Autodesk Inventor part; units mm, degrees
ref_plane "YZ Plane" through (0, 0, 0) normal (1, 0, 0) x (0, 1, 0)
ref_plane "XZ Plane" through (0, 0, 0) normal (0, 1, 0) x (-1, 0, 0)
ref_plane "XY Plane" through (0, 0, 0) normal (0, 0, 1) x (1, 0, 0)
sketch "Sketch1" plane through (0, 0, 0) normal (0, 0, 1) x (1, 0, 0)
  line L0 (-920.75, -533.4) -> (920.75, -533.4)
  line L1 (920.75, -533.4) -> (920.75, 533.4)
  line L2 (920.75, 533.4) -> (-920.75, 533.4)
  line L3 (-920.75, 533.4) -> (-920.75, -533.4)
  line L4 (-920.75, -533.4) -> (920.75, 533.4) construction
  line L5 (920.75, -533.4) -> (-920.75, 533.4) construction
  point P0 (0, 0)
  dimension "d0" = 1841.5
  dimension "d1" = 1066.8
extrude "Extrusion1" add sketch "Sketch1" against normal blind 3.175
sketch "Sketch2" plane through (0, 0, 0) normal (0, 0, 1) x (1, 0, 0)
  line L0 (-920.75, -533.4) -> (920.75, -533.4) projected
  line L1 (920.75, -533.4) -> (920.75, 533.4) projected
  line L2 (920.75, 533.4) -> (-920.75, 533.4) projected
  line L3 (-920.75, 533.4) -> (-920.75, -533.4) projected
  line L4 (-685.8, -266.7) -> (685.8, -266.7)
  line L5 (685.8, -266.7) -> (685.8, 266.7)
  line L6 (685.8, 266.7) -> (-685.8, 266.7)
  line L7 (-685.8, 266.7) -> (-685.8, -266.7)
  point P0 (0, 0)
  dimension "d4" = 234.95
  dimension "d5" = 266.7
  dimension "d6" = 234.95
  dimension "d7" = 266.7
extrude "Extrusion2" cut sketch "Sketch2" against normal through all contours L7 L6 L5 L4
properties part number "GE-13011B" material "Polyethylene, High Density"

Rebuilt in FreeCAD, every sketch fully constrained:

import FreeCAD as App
import Part
import Sketcher
Q = App.Units.Quantity

doc = App.newDocument("Part")
body = doc.addObject("PartDesign::Body", "Body")

# Sketch on XY plane
sketch1 = body.newObject("Sketcher::SketchObject", "Sketch")
sketch1.AttachmentSupport = (doc.getObject("XY_Plane"), [""])
sketch1.MapMode = "FlatFace"
sketch1.addGeometry(Part.LineSegment(App.Vector(-921, 533, 0), App.Vector(-921, -533, 0)), False)
sketch1.addGeometry(Part.LineSegment(App.Vector(-921, -533, 0), App.Vector(921, -533, 0)), False)
sketch1.addGeometry(Part.LineSegment(App.Vector(921, -533, 0), App.Vector(921, 533, 0)), False)
sketch1.addGeometry(Part.LineSegment(App.Vector(921, 533, 0), App.Vector(-921, 533, 0)), False)
sketch1.addConstraint(Sketcher.Constraint("Coincident", 0, 2, 1, 1))
sketch1.addConstraint(Sketcher.Constraint("Coincident", 1, 2, 2, 1))
sketch1.addConstraint(Sketcher.Constraint("Coincident", 2, 2, 3, 1))
sketch1.addConstraint(Sketcher.Constraint("Coincident", 3, 2, 0, 1))
sketch1.addConstraint(Sketcher.Constraint("Vertical", 0))
sketch1.addConstraint(Sketcher.Constraint("Horizontal", 1))
sketch1.addConstraint(Sketcher.Constraint("Vertical", 2))
sketch1.addConstraint(Sketcher.Constraint("Horizontal", 3))
sketch1.addConstraint(Sketcher.Constraint("Symmetric", 0, 2, 2, 2, -1, 1))
sketch1.addConstraint(Sketcher.Constraint("DistanceY", 0, 2, 0, 1, Q("42 in")))
sketch1.addConstraint(Sketcher.Constraint("DistanceX", 1, 1, 1, 2, Q("72.5 in")))
pad1 = body.newObject("PartDesign::Pad", "Pad")
pad1.Profile = sketch1
pad1.Length = Q("0.125 in")
pad1.Reversed = True

# Sketch on XY plane
sketch2 = body.newObject("Sketcher::SketchObject", "Sketch001")
sketch2.AttachmentSupport = (doc.getObject("XY_Plane"), [""])
sketch2.MapMode = "FlatFace"
sketch2.addGeometry(Part.LineSegment(App.Vector(-686, 267, 0), App.Vector(-686, -267, 0)), False)
sketch2.addGeometry(Part.LineSegment(App.Vector(-686, -267, 0), App.Vector(686, -267, 0)), False)
sketch2.addGeometry(Part.LineSegment(App.Vector(686, -267, 0), App.Vector(686, 267, 0)), False)
sketch2.addGeometry(Part.LineSegment(App.Vector(686, 267, 0), App.Vector(-686, 267, 0)), False)
sketch2.addConstraint(Sketcher.Constraint("Coincident", 0, 2, 1, 1))
sketch2.addConstraint(Sketcher.Constraint("Coincident", 1, 2, 2, 1))
sketch2.addConstraint(Sketcher.Constraint("Coincident", 2, 2, 3, 1))
sketch2.addConstraint(Sketcher.Constraint("Coincident", 3, 2, 0, 1))
sketch2.addConstraint(Sketcher.Constraint("Vertical", 0))
sketch2.addConstraint(Sketcher.Constraint("Horizontal", 1))
sketch2.addConstraint(Sketcher.Constraint("Vertical", 2))
sketch2.addConstraint(Sketcher.Constraint("Horizontal", 3))
sketch2.addConstraint(Sketcher.Constraint("Symmetric", 0, 2, 2, 2, -1, 1))
sketch2.addConstraint(Sketcher.Constraint("DistanceY", 0, 2, -1, 1, Q("10.5 in")))
sketch2.addConstraint(Sketcher.Constraint("DistanceX", 1, 1, 1, 2, Q("54 in")))
pocket1 = body.newObject("PartDesign::Pocket", "Pocket")
pocket1.Profile = sketch2
pocket1.Type = "ThroughAll"

doc.recompute()
